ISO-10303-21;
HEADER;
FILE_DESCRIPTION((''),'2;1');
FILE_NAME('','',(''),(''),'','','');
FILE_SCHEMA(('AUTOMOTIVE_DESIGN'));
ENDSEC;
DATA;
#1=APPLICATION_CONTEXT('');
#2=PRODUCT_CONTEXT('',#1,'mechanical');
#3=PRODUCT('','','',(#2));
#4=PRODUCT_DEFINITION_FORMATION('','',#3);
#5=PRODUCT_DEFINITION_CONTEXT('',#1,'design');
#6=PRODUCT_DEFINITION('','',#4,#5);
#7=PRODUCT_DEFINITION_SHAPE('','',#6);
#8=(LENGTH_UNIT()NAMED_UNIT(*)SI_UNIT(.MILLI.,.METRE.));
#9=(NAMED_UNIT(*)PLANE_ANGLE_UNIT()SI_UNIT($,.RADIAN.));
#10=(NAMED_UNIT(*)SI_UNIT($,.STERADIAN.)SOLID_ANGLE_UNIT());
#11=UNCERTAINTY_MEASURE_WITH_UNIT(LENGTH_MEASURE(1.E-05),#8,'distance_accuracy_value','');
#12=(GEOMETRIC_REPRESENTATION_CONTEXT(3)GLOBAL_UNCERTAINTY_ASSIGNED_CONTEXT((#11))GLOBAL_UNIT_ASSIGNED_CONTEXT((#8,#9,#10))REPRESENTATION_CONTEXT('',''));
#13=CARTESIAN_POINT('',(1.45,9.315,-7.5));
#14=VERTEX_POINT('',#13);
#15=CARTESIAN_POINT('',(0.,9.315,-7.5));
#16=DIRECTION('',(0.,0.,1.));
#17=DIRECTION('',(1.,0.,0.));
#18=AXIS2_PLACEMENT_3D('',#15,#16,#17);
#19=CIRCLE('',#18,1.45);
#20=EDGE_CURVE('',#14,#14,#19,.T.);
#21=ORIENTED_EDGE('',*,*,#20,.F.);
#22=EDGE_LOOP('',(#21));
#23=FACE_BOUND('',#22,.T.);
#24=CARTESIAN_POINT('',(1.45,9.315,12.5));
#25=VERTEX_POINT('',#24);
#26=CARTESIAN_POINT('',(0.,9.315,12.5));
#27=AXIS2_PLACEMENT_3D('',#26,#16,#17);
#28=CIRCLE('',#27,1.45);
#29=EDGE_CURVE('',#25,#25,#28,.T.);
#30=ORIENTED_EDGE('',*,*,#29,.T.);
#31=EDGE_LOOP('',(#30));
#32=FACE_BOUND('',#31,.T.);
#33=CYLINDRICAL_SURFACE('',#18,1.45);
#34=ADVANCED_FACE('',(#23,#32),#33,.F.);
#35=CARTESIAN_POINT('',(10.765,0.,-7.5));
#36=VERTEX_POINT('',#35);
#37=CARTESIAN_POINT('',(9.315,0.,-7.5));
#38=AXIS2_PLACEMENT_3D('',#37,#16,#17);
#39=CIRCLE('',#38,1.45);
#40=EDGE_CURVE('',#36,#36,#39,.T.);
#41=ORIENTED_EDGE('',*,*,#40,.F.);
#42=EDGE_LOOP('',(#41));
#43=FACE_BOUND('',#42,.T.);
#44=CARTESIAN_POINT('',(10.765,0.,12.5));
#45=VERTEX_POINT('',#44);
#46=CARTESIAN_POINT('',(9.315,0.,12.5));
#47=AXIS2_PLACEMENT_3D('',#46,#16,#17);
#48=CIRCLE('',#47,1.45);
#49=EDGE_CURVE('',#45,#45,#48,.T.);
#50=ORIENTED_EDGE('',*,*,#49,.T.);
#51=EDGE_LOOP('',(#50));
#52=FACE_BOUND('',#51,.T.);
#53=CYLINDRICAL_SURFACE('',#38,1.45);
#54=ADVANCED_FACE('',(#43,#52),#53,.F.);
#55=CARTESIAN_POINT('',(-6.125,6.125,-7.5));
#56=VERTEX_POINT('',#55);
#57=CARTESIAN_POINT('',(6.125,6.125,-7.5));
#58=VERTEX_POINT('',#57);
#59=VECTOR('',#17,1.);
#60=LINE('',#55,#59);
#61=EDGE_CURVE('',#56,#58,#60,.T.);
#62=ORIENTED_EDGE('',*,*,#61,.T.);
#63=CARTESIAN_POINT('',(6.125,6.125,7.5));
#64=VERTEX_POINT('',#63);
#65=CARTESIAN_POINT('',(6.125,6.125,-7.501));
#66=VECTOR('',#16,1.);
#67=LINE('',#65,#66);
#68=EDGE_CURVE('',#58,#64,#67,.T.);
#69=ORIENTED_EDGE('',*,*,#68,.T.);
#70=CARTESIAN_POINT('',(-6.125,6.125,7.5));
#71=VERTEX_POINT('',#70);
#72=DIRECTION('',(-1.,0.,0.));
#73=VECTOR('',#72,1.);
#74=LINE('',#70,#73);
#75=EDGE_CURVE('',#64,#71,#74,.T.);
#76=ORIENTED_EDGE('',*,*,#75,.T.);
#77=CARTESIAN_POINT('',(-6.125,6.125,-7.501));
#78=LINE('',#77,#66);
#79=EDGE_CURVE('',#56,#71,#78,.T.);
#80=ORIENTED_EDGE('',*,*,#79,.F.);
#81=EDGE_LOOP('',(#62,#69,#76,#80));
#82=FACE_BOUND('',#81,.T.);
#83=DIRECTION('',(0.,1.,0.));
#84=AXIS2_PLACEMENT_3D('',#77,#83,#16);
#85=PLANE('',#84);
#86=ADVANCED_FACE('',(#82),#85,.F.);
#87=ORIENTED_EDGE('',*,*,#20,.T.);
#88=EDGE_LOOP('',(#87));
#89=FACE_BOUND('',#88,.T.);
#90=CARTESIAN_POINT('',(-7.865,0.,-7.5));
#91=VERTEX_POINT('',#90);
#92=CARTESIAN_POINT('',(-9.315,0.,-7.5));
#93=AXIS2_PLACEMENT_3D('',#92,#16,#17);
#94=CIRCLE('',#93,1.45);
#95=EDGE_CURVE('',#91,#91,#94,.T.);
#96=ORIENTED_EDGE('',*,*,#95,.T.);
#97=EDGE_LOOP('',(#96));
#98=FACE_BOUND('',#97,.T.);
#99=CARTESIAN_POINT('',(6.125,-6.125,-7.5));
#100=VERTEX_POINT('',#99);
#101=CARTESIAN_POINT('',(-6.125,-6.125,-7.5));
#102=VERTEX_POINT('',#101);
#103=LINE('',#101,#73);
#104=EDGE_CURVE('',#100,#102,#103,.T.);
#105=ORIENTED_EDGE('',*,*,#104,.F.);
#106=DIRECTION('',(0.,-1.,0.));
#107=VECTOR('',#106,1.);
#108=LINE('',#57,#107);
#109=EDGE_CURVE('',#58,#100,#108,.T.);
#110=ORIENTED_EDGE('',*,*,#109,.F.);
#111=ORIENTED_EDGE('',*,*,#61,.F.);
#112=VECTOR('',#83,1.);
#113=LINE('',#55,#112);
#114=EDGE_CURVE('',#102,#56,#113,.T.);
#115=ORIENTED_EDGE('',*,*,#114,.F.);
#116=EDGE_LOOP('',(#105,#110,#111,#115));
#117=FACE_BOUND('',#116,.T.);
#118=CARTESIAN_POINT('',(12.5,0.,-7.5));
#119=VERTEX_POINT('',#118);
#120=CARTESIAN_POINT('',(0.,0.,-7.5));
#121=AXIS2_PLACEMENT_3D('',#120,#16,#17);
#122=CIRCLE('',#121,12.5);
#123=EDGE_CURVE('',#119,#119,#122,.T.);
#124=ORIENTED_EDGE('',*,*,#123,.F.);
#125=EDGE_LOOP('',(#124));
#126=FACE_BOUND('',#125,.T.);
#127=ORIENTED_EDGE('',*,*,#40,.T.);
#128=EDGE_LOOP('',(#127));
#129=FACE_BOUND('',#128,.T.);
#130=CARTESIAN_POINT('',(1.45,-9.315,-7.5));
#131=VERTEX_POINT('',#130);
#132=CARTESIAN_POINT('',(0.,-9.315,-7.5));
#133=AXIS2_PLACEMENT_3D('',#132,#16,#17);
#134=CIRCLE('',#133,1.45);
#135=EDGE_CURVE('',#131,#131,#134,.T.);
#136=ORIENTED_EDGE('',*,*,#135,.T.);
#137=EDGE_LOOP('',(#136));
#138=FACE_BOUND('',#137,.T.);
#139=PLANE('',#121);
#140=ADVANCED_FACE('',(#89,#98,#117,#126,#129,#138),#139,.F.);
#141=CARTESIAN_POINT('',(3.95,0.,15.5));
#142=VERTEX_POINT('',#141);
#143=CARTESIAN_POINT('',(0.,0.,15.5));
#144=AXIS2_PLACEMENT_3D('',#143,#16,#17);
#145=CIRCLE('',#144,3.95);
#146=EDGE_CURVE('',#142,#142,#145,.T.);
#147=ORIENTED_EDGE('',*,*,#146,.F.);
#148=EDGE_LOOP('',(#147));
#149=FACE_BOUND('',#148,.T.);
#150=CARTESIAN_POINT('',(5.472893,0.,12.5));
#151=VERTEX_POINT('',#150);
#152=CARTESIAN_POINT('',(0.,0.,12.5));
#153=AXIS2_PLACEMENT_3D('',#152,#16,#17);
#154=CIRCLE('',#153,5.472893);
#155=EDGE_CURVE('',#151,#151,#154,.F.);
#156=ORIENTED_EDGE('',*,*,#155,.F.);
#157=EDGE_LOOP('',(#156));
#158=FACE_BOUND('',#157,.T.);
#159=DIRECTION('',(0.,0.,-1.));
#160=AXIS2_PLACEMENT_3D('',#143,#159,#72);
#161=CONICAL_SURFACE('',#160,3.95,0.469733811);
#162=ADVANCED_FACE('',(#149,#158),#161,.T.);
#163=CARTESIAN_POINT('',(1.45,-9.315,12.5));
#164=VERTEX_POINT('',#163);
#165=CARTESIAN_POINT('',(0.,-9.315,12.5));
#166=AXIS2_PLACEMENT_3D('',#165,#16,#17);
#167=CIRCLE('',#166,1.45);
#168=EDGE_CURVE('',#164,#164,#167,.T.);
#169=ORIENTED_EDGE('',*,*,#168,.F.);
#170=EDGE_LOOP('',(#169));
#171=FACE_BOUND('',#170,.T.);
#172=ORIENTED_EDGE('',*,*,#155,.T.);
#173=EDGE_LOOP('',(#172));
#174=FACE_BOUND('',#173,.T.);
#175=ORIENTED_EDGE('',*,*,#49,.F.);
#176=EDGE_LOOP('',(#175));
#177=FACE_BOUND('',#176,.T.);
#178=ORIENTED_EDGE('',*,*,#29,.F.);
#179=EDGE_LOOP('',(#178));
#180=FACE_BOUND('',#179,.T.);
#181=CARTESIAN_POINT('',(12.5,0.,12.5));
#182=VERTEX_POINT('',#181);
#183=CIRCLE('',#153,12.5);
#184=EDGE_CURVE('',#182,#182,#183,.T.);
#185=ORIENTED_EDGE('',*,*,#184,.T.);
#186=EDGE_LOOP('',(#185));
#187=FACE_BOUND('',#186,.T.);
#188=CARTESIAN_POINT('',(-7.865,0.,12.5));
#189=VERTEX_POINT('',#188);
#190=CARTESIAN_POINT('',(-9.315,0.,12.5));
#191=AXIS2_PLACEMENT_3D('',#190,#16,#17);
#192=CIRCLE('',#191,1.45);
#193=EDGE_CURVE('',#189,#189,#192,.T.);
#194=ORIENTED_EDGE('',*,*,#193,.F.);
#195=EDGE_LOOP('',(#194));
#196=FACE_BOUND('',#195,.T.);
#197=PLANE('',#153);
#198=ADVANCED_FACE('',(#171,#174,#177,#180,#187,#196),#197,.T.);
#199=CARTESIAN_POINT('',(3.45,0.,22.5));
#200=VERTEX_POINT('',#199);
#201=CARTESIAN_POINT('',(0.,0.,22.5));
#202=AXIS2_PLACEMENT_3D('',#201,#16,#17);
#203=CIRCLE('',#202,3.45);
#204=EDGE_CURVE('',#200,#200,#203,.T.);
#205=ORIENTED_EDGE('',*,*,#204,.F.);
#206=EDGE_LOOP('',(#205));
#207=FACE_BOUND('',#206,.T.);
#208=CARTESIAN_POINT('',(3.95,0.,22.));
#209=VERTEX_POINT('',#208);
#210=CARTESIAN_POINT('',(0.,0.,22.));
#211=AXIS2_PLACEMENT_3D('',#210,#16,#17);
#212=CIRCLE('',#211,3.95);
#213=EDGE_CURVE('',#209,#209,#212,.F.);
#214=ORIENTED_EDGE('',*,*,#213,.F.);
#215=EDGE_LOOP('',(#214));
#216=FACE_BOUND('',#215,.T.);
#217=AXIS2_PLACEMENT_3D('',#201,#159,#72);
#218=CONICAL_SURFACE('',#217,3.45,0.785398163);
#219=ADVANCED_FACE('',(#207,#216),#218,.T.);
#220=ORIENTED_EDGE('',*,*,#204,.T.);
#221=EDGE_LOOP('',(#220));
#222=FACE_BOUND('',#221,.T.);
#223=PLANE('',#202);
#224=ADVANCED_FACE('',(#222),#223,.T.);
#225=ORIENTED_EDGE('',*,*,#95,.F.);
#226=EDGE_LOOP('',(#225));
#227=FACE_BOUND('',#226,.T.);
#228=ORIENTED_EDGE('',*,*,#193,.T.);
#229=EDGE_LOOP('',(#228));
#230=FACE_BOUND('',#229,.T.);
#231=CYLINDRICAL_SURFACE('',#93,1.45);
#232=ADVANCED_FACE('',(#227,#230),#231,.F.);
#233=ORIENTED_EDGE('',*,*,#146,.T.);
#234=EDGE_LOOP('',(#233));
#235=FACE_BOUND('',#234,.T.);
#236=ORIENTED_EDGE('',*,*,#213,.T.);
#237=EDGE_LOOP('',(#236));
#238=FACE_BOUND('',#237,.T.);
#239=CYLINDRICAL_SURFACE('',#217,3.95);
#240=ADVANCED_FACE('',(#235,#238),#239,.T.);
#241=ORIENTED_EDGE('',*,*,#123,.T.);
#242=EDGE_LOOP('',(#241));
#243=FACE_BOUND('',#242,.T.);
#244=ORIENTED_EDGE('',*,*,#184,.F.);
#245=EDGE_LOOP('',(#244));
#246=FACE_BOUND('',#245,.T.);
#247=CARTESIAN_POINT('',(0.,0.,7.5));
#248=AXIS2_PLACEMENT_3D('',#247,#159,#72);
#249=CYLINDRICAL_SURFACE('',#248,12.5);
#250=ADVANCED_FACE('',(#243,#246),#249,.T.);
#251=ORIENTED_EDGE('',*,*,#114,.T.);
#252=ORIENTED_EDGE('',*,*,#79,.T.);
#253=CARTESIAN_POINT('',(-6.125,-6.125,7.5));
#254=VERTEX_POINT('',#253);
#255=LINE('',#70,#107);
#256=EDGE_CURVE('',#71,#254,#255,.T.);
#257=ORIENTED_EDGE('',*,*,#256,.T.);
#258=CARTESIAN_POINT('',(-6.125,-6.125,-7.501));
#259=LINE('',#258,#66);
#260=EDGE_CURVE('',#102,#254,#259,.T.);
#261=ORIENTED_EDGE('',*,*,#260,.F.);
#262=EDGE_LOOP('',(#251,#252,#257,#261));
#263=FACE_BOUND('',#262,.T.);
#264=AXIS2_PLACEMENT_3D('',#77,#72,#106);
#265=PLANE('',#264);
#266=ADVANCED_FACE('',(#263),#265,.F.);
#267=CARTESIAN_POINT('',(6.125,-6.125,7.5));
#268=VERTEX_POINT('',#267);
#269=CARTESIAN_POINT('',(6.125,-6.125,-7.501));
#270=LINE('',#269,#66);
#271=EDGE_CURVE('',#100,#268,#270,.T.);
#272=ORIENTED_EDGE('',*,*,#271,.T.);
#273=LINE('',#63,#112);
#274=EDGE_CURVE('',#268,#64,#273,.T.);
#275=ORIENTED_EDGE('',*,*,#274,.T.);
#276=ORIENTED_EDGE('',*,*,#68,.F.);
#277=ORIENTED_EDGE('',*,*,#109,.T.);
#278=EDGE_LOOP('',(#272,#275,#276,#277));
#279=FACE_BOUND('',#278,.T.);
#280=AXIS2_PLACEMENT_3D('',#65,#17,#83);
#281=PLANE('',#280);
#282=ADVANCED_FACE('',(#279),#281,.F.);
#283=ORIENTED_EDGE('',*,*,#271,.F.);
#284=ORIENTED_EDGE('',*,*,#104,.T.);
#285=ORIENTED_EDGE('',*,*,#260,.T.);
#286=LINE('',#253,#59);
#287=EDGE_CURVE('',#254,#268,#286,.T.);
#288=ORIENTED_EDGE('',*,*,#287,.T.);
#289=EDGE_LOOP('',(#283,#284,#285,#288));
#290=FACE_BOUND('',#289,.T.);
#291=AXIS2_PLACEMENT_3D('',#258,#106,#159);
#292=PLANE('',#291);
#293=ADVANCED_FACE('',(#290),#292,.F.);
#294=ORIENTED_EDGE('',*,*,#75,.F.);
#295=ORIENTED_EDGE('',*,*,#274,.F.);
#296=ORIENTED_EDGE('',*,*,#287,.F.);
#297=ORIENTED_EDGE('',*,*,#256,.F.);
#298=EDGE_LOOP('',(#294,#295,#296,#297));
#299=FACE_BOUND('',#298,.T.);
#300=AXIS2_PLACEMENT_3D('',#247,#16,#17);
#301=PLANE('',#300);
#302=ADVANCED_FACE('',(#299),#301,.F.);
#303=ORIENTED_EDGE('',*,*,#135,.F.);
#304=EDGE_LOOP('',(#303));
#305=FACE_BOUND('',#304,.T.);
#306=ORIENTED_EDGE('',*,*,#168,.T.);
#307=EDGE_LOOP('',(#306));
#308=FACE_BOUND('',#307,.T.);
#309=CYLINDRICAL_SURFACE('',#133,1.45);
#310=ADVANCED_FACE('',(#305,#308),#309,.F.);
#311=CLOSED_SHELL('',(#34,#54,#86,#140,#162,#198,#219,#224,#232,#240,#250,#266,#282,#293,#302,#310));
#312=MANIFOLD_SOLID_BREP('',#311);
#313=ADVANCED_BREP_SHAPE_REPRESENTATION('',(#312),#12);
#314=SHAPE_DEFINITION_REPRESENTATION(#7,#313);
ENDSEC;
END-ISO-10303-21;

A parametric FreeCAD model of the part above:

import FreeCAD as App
import Part
import Sketcher

V = App.Vector


def edges_at(feature, points):
    """Names of the edges that pass closest to the given points."""
    edges = feature.Shape.Edges
    near = lambda p: min(range(len(edges)), key=lambda i: edges[i].distToShape(Part.Vertex(*p))[0])
    return sorted({f"Edge{near(p) + 1}" for p in points})

doc = App.newDocument("Part")
body = doc.addObject("PartDesign::Body", "Body")

# Sketch on XY plane
sketch1 = body.newObject("Sketcher::SketchObject", "Sketch")
sketch1.AttachmentSupport = (doc.getObject("XY_Plane"), [""])
sketch1.MapMode = "FlatFace"
sketch1.addGeometry(Part.Circle(V(0, 0, 0), V(0, 0, 1), 12), False)
sketch1.addConstraint(Sketcher.Constraint("Coincident", 0, 3, -1, 1))
sketch1.addConstraint(Sketcher.Constraint("Diameter", 0, 25.0))
pad1 = body.newObject("PartDesign::Pad", "Pad")
pad1.Profile = sketch1
pad1.Length = 15
pad1.Midplane = True

# Sketch on XY plane
sketch2 = body.newObject("Sketcher::SketchObject", "Sketch001")
sketch2.AttachmentSupport = (doc.getObject("XY_Plane"), [""])
sketch2.MapMode = "FlatFace"
sketch2.AttachmentOffset = App.Placement(V(0, 0, 7.5), App.Rotation())
sketch2.addGeometry(Part.LineSegment(V(-6, 6, 0), V(-6, -6, 0)), False)
sketch2.addGeometry(Part.LineSegment(V(-6, -6, 0), V(6, -6, 0)), False)
sketch2.addGeometry(Part.LineSegment(V(6, -6, 0), V(6, 6, 0)), False)
sketch2.addGeometry(Part.LineSegment(V(6, 6, 0), V(-6, 6, 0)), False)
sketch2.addConstraint(Sketcher.Constraint("Coincident", 0, 2, 1, 1))
sketch2.addConstraint(Sketcher.Constraint("Coincident", 1, 2, 2, 1))
sketch2.addConstraint(Sketcher.Constraint("Coincident", 2, 2, 3, 1))
sketch2.addConstraint(Sketcher.Constraint("Coincident", 3, 2, 0, 1))
sketch2.addConstraint(Sketcher.Constraint("Vertical", 0))
sketch2.addConstraint(Sketcher.Constraint("Horizontal", 1))
sketch2.addConstraint(Sketcher.Constraint("Vertical", 2))
sketch2.addConstraint(Sketcher.Constraint("Horizontal", 3))
sketch2.addConstraint(Sketcher.Constraint("Symmetric", 0, 2, 2, 2, -1, 1))
sketch2.addConstraint(Sketcher.Constraint("Equal", 3, 0))
sketch2.addConstraint(Sketcher.Constraint("DistanceX", 1, 1, 1, 2, 12.25))
pocket1 = body.newObject("PartDesign::Pocket", "Pocket")
pocket1.Profile = sketch2
pocket1.Type = "UpToFirst"

# Sketch on XY plane
sketch3 = body.newObject("Sketcher::SketchObject", "Sketch002")
sketch3.AttachmentSupport = (doc.getObject("XY_Plane"), [""])
sketch3.MapMode = "FlatFace"
sketch3.AttachmentOffset = App.Placement(V(0, 0, 7.5), App.Rotation())
sketch3.addGeometry(Part.Circle(V(9.3, 0, 0), V(0, 0, 1), 1.4), False)
sketch3.addGeometry(Part.Circle(V(0, -9.3, 0), V(0, 0, 1), 1.4), False)
sketch3.addGeometry(Part.Circle(V(-9.3, 0, 0), V(0, 0, 1), 1.4), False)
sketch3.addGeometry(Part.Circle(V(0, 9.3, 0), V(0, 0, 1), 1.4), False)
sketch3.addConstraint(Sketcher.Constraint("Equal", 0, 1))
sketch3.addConstraint(Sketcher.Constraint("Equal", 1, 2))
sketch3.addConstraint(Sketcher.Constraint("Equal", 2, 3))
sketch3.addConstraint(Sketcher.Constraint("Symmetric", 0, 3, 2, 3, -1, 1))
sketch3.addConstraint(Sketcher.Constraint("Symmetric", 1, 3, 3, 3, -1, 1))
sketch3.addConstraint(Sketcher.Constraint("PointOnObject", 0, 3, -1))
sketch3.addConstraint(Sketcher.Constraint("PointOnObject", 1, 3, -2))
sketch3.addConstraint(Sketcher.Constraint("Diameter", 0, 2.9))
sketch3.addConstraint(Sketcher.Constraint("DistanceX", 2, 3, 0, 3, 18.63))
sketch3.addConstraint(Sketcher.Constraint("DistanceY", 1, 3, 3, 3, 18.63))
pocket2 = body.newObject("PartDesign::Pocket", "Pocket001")
pocket2.Profile = sketch3
pocket2.Type = "ThroughAll"

# Sketch on XY plane
sketch4 = body.newObject("Sketcher::SketchObject", "Sketch003")
sketch4.AttachmentSupport = (doc.getObject("XY_Plane"), [""])
sketch4.MapMode = "FlatFace"
sketch4.AttachmentOffset = App.Placement(V(0, 0, 12.5), App.Rotation())
sketch4.addGeometry(Part.Circle(V(0, 0, 0), V(0, 0, 1), 12), False)
sketch4.addConstraint(Sketcher.Constraint("Coincident", 0, 3, -1, 1))
sketch4.addConstraint(Sketcher.Constraint("Diameter", 0, 25.0))
pad2 = body.newObject("PartDesign::Pad", "Pad001")
pad2.Profile = sketch4
pad2.Length = 5
pad2.Reversed = True

# Sketch on XZ plane
sketch5 = body.newObject("Sketcher::SketchObject", "Sketch004")
sketch5.AttachmentSupport = (doc.getObject("XZ_Plane"), [""])
sketch5.MapMode = "FlatFace"
sketch5.addGeometry(Part.LineSegment(V(0, 15.5, 0), V(4, 15.5, 0)), False)
sketch5.addGeometry(Part.LineSegment(V(4, 15.5, 0), V(7.5, 8.5, 0)), False)
sketch5.addGeometry(Part.LineSegment(V(7.5, 8.5, 0), V(0, 8.5, 0)), False)
sketch5.addGeometry(Part.LineSegment(V(0, 8.5, 0), V(0, 15.5, 0)), False)
sketch5.addConstraint(Sketcher.Constraint("Coincident", 0, 2, 1, 1))
sketch5.addConstraint(Sketcher.Constraint("Coincident", 1, 2, 2, 1))
sketch5.addConstraint(Sketcher.Constraint("Coincident", 2, 2, 3, 1))
sketch5.addConstraint(Sketcher.Constraint("Coincident", 3, 2, 0, 1))
sketch5.addConstraint(Sketcher.Constraint("Horizontal", 0))
sketch5.addConstraint(Sketcher.Constraint("Horizontal", 2))
sketch5.addConstraint(Sketcher.Constraint("Vertical", 3))
sketch5.addConstraint(Sketcher.Constraint("PointOnObject", 2, 2, -2))
sketch5.addConstraint(Sketcher.Constraint("DistanceX", 2, 2, 2, 1, 7.5))
sketch5.addConstraint(Sketcher.Constraint("DistanceX", 0, 1, 0, 2, 3.95))
sketch5.addConstraint(Sketcher.Constraint("DistanceY", -1, 1, 0, 2, 15.5))
sketch5.addConstraint(Sketcher.Constraint("DistanceY", 3, 1, 3, 2, 6.993268))
revolution = body.newObject("PartDesign::Revolution", "Revolution")
revolution.Profile = sketch5
revolution.ReferenceAxis = (sketch5, ["V_Axis"])
revolution.Angle = 360

# Sketch on XY plane
sketch6 = body.newObject("Sketcher::SketchObject", "Sketch005")
sketch6.AttachmentSupport = (doc.getObject("XY_Plane"), [""])
sketch6.MapMode = "FlatFace"
sketch6.AttachmentOffset = App.Placement(V(0, 0, 15.5), App.Rotation())
sketch6.addGeometry(Part.Circle(V(0, 0, 0), V(0, 0, 1), 4), False)
sketch6.addConstraint(Sketcher.Constraint("Coincident", 0, 3, -1, 1))
sketch6.addConstraint(Sketcher.Constraint("Diameter", 0, 7.9))
pad3 = body.newObject("PartDesign::Pad", "Pad002")
pad3.Profile = sketch6
pad3.Length = 7
doc.recompute()

chamfer = body.newObject("PartDesign::Chamfer", "Chamfer")
chamfer.Base = (pad3, edges_at(pad3, [(-3.95, 0, 22.5)]))
chamfer.Size = 0.5

# Sketch on XY plane
sketch7 = body.newObject("Sketcher::SketchObject", "Sketch006")
sketch7.AttachmentSupport = (doc.getObject("XY_Plane"), [""])
sketch7.MapMode = "FlatFace"
sketch7.AttachmentOffset = App.Placement(V(0, 0, 12.5), App.Rotation())
sketch7.addGeometry(Part.Circle(V(-9.3, 0, 0), V(0, 0, 1), 1.4), False)
sketch7.addGeometry(Part.Circle(V(0, -9.3, 0), V(0, 0, 1), 1.4), False)
sketch7.addGeometry(Part.Circle(V(9.3, 0, 0), V(0, 0, 1), 1.4), False)
sketch7.addGeometry(Part.Circle(V(0, 9.3, 0), V(0, 0, 1), 1.4), False)
sketch7.addConstraint(Sketcher.Constraint("Equal", 0, 1))
sketch7.addConstraint(Sketcher.Constraint("Equal", 1, 2))
sketch7.addConstraint(Sketcher.Constraint("Equal", 2, 3))
sketch7.addConstraint(Sketcher.Constraint("Symmetric", 0, 3, 2, 3, -1, 1))
sketch7.addConstraint(Sketcher.Constraint("Symmetric", 1, 3, 3, 3, -1, 1))
sketch7.addConstraint(Sketcher.Constraint("PointOnObject", 0, 3, -1))
sketch7.addConstraint(Sketcher.Constraint("PointOnObject", 1, 3, -2))
sketch7.addConstraint(Sketcher.Constraint("Diameter", 0, 2.9))
sketch7.addConstraint(Sketcher.Constraint("DistanceX", 0, 3, 2, 3, 18.63))
sketch7.addConstraint(Sketcher.Constraint("DistanceY", 1, 3, 3, 3, 18.63))
pocket3 = body.newObject("PartDesign::Pocket", "Pocket002")
pocket3.Profile = sketch7
pocket3.Length = 30

doc.recompute()
